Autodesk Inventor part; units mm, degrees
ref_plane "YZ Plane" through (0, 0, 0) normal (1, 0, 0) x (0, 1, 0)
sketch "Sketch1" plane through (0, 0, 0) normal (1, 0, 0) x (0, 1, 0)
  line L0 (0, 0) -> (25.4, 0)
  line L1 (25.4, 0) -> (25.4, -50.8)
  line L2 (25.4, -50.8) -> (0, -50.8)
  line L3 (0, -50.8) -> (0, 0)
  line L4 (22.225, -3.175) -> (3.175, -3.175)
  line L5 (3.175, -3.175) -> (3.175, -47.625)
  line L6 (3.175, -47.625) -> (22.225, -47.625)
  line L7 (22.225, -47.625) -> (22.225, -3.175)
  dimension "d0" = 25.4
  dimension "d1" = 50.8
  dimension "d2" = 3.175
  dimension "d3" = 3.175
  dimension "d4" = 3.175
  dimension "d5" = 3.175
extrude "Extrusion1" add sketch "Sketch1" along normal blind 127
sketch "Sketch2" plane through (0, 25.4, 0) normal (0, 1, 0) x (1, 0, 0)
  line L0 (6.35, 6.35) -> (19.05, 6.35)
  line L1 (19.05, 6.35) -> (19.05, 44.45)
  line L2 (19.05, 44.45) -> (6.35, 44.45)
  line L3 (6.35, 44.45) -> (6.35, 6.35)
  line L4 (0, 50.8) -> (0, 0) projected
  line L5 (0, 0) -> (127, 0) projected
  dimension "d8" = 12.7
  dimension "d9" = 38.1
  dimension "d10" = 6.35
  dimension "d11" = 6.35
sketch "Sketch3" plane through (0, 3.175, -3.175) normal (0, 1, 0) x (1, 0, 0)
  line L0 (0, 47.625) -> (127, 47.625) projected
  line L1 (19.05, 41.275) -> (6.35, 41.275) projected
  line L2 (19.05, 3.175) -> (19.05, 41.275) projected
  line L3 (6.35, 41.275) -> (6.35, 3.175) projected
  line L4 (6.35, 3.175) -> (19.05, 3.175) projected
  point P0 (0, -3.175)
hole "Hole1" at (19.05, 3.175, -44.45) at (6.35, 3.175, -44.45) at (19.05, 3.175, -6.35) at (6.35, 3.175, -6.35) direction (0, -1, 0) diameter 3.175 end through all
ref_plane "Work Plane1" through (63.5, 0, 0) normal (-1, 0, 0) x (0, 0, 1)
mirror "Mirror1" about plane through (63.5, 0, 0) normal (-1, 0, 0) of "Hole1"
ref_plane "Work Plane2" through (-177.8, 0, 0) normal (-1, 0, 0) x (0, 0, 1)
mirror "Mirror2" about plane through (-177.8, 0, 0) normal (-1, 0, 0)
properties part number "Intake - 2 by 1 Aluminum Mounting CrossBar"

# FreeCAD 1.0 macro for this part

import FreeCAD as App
import Part
import Sketcher
from FreeCAD import Vector
Q = App.Units.Quantity


def add_polygon(sketch, points):
    """Adds a closed chain of lines whose ends are joined by coincident constraints."""
    first, n = sketch.GeometryCount, len(points)
    for a, b in zip(points, points[1:] + points[:1]):
        sketch.addGeometry(Part.LineSegment(App.Vector(*a, 0), App.Vector(*b, 0)), False)
    for i in range(n):
        sketch.addConstraint(Sketcher.Constraint("Coincident", first + i, 2, first + (i + 1) % n, 1))

doc = App.newDocument("Part")
body = doc.addObject("PartDesign::Body", "Body")
body.AllowCompound = True

# Sketch on YZ plane
sketch1 = body.newObject("Sketcher::SketchObject", "Sketch")
sketch1.AttachmentSupport = (doc.getObject("YZ_Plane"), [""])
sketch1.MapMode = "FlatFace"
add_polygon(sketch1, [(25.4, 0), (0, 0), (0, -50.8), (25.4, -50.8)])  # lines 0-3
add_polygon(sketch1, [(3.175, -3.175), (22.225, -3.175), (22.225, -47.625), (3.175, -47.625)])  # lines 4-7
sketch1.addConstraint([
    Sketcher.Constraint("Horizontal", 0),
    Sketcher.Constraint("Vertical", 1),
    Sketcher.Constraint("Horizontal", 2),
    Sketcher.Constraint("Vertical", 3),
    Sketcher.Constraint("Horizontal", 4),
    Sketcher.Constraint("Vertical", 5),
    Sketcher.Constraint("Horizontal", 6),
    Sketcher.Constraint("Vertical", 7),
    Sketcher.Constraint("Coincident", 0, 2, -1, 1),
    Sketcher.Constraint("DistanceX", 0, 2, 0, 1, Q("1 in")),
    Sketcher.Constraint("DistanceY", 1, 2, 1, 1, Q("2 in")),
    Sketcher.Constraint("DistanceY", 4, 2, -1, 1, Q("0.125 in")),
    Sketcher.Constraint("DistanceX", -1, 1, 6, 2, Q("0.125 in")),
    Sketcher.Constraint("DistanceX", 4, 2, 3, 2, Q("0.125 in")),
    Sketcher.Constraint("DistanceY", 2, 2, 5, 2, Q("0.125 in")),
])
pad1 = body.newObject("PartDesign::Pad", "Pad")
pad1.Profile = sketch1
pad1.Length = Q("5 in")

# Sketch on XZ plane
sketch2 = body.newObject("Sketcher::SketchObject", "Sketch001")
sketch2.AttachmentSupport = (doc.getObject("XZ_Plane"), [""])
sketch2.MapMode = "FlatFace"
sketch2.AttachmentOffset = App.Placement(Vector(0, 0, -0.125 * 25.4), App.Rotation())
sketch2.addGeometry([
    Part.Circle(Vector(19.05, -44.45, 0), Vector(0, 0, 1), 1.5875),
    Part.Circle(Vector(6.35, -44.45, 0), Vector(0, 0, 1), 1.5875),
    Part.Circle(Vector(19.05, -6.35, 0), Vector(0, 0, 1), 1.5875),
    Part.Circle(Vector(6.35, -6.35, 0), Vector(0, 0, 1), 1.5875),
], False)
sketch2.addConstraint([
    Sketcher.Constraint("Equal", 0, 1),
    Sketcher.Constraint("Equal", 1, 2),
    Sketcher.Constraint("Equal", 2, 3),
    Sketcher.Constraint("Horizontal", 0, 3, 1, 3),
    Sketcher.Constraint("Horizontal", 2, 3, 3, 3),
    Sketcher.Constraint("Vertical", 0, 3, 2, 3),
    Sketcher.Constraint("Vertical", 1, 3, 3, 3),
    Sketcher.Constraint("Diameter", 0, Q("0.125 in")),
    Sketcher.Constraint("DistanceX", 1, 3, 0, 3, Q("0.5 in")),
    Sketcher.Constraint("DistanceY", 0, 3, 2, 3, Q("1.5 in")),
    Sketcher.Constraint("DistanceX", -1, 1, 0, 3, Q("0.75 in")),
    Sketcher.Constraint("DistanceY", 0, 3, -1, 1, Q("1.75 in")),
])
doc.recompute()
hole = body.newObject("PartDesign::Hole", "Hole")
hole.Profile = sketch2
hole.ThreadType = "None"
hole.Diameter = Q("0.125 in")
hole.DepthType = "ThroughAll"
hole.Reversed = True
doc.recompute()

datumplane = body.newObject("PartDesign::Plane", "DatumPlane")
datumplane.AttachmentSupport = (doc.getObject("YZ_Plane"), [""])
datumplane.MapMode = "FlatFace"
datumplane.AttachmentOffset = App.Placement(Vector(0, 0, 2.5 * 25.4), App.Rotation())
mirrored = body.newObject("PartDesign::Mirrored", "Mirrored")
mirrored.Originals = [hole]
mirrored.MirrorPlane = (datumplane, [""])
body.Tip = mirrored
doc.recompute()

datumplane2 = body.newObject("PartDesign::Plane", "DatumPlane001")
datumplane2.AttachmentSupport = (doc.getObject("YZ_Plane"), [""])
datumplane2.MapMode = "FlatFace"
datumplane2.AttachmentOffset = App.Placement(Vector(0, 0, -7 * 25.4), App.Rotation())
mirrored2 = body.newObject("PartDesign::Mirrored", "Mirrored001")
mirrored2.TransformMode = "Transform body"
mirrored2.MirrorPlane = (datumplane2, [""])
body.Tip = mirrored2

doc.recompute()
